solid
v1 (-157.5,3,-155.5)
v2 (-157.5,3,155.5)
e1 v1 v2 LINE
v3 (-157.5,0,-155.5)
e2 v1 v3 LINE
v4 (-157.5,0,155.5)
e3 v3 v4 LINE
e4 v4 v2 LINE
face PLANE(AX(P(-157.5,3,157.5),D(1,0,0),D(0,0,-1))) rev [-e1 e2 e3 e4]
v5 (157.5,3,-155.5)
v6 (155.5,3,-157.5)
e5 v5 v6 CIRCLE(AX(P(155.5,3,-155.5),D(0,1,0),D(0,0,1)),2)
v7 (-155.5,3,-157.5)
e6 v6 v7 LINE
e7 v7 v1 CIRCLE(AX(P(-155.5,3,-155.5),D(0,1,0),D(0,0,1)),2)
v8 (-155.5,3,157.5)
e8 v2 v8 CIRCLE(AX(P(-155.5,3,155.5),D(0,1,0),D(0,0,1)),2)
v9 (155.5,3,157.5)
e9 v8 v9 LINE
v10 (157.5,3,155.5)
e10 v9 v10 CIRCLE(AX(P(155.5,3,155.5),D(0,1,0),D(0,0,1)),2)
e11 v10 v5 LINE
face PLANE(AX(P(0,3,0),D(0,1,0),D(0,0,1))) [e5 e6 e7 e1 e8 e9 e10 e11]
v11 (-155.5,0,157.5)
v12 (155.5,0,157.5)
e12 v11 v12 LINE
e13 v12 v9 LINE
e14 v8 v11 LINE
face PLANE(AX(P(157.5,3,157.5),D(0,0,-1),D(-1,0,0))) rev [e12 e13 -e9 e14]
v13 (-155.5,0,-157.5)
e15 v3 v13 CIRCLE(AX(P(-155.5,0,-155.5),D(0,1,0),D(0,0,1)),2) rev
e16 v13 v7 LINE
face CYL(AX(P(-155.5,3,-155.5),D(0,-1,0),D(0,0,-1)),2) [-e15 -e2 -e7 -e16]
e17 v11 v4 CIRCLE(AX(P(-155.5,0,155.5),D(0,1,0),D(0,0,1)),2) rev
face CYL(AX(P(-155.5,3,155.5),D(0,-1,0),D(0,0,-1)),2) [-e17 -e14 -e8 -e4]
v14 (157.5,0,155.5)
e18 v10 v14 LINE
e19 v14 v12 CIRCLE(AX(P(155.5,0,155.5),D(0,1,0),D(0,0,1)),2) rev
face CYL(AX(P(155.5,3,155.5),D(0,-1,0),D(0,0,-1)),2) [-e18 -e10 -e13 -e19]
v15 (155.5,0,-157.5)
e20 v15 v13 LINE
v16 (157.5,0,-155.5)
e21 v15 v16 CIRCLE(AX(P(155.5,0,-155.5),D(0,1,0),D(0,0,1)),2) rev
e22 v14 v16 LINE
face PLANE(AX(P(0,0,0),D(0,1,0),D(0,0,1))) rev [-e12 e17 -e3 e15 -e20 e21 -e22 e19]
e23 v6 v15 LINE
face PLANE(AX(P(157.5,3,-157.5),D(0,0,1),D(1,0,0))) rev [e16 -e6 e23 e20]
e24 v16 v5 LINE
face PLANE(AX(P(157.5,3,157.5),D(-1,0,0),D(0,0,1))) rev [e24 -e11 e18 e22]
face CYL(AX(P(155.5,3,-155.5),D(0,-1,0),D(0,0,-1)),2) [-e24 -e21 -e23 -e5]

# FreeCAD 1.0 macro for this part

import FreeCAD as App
import Part
import Sketcher
from FreeCAD import Vector


def edges_at(feature, points):
    """Names of the edges that pass closest to the given points."""
    edges = feature.Shape.Edges
    near = lambda p: min(range(len(edges)), key=lambda i: edges[i].distToShape(Part.Vertex(*p))[0])
    return sorted({f"Edge{near(p) + 1}" for p in points})


def add_polygon(sketch, points):
    """Adds a closed chain of lines whose ends are joined by coincident constraints."""
    first, n = sketch.GeometryCount, len(points)
    for a, b in zip(points, points[1:] + points[:1]):
        sketch.addGeometry(Part.LineSegment(App.Vector(*a, 0), App.Vector(*b, 0)), False)
    for i in range(n):
        sketch.addConstraint(Sketcher.Constraint("Coincident", first + i, 2, first + (i + 1) % n, 1))

doc = App.newDocument("Part")
params = doc.addObject("Spreadsheet::Sheet", "Params")
for row, (alias, value) in enumerate([
    ("sketch1_width", "315 mm"),
    ("pad1_length", "3 mm"),
    ("fillet_radius", "2 mm"),
], start=1):
    params.set(f"A{row}", alias)
    params.set(f"B{row}", "=" + value)
    params.setAlias(f"B{row}", alias)

body = doc.addObject("PartDesign::Body", "Body")

sketch1 = body.newObject("Sketcher::SketchObject", "Sketch")
sketch1.AttachmentSupport = (doc.getObject("XZ_Plane"), [""])
sketch1.MapMode = "FlatFace"
add_polygon(sketch1, [(-158, -158), (-158, 158), (158, 158), (158, -158)])
sketch1.addConstraint([
    Sketcher.Constraint("Vertical", 0),
    Sketcher.Constraint("Horizontal", 1),
    Sketcher.Constraint("Vertical", 2),
    Sketcher.Constraint("Horizontal", 3),
    Sketcher.Constraint("Symmetric", 0, 2, 2, 2, -1, 1),
    Sketcher.Constraint("Equal", 3, 0),
    Sketcher.Constraint("DistanceX", 1, 1, 1, 2, 315.0),
])
sketch1.setExpression("Constraints[10]", "Params.sketch1_width")
pad1 = body.newObject("PartDesign::Pad", "Pad")
pad1.Profile = sketch1
pad1.setExpression("Length", "Params.pad1_length")
pad1.Reversed = True
doc.recompute()

fillet = body.newObject("PartDesign::Fillet", "Fillet")
fillet.Base = (pad1, edges_at(pad1, [
    (-157.5, 1.5, -157.5),
    (157.5, 1.5, -157.5),
    (157.5, 1.5, 157.5),
    (-157.5, 1.5, 157.5),
]))
fillet.setExpression("Radius", "Params.fillet_radius")

doc.recompute()
